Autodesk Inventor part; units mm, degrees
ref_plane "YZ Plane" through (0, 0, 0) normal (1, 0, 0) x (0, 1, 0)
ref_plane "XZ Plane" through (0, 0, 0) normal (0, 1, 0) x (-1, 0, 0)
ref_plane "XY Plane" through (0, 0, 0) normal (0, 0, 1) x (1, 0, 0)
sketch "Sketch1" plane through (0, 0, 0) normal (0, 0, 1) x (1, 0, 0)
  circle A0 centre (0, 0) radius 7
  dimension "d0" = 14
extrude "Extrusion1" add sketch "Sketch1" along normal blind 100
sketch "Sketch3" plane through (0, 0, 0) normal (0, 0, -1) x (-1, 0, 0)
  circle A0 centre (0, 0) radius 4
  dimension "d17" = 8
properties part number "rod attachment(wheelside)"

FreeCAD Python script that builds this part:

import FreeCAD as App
import Part
import Sketcher

doc = App.newDocument("Part")
params = doc.addObject("Spreadsheet::Sheet", "Params")
for row, (alias, value) in enumerate([
    ("sketch1_diameter", "14 mm"),
    ("pad1_length", "100 mm"),
], start=1):
    params.set(f"A{row}", alias)
    params.set(f"B{row}", "=" + value)
    params.setAlias(f"B{row}", alias)

body = doc.addObject("PartDesign::Body", "Body")

sketch1 = body.newObject("Sketcher::SketchObject", "Sketch")
sketch1.AttachmentSupport = (doc.getObject("XY_Plane"), [""])
sketch1.MapMode = "FlatFace"
sketch1.addGeometry(Part.Circle(App.Vector(0, 0, 0), App.Vector(0, 0, 1), 7), False)
sketch1.addConstraint([
    Sketcher.Constraint("Coincident", 0, 3, -1, 1),
    Sketcher.Constraint("Diameter", 0, 14.0),
])
sketch1.setExpression("Constraints[1]", "Params.sketch1_diameter")
pad1 = body.newObject("PartDesign::Pad", "Pad")
pad1.Profile = sketch1
pad1.setExpression("Length", "Params.pad1_length")

doc.recompute()
